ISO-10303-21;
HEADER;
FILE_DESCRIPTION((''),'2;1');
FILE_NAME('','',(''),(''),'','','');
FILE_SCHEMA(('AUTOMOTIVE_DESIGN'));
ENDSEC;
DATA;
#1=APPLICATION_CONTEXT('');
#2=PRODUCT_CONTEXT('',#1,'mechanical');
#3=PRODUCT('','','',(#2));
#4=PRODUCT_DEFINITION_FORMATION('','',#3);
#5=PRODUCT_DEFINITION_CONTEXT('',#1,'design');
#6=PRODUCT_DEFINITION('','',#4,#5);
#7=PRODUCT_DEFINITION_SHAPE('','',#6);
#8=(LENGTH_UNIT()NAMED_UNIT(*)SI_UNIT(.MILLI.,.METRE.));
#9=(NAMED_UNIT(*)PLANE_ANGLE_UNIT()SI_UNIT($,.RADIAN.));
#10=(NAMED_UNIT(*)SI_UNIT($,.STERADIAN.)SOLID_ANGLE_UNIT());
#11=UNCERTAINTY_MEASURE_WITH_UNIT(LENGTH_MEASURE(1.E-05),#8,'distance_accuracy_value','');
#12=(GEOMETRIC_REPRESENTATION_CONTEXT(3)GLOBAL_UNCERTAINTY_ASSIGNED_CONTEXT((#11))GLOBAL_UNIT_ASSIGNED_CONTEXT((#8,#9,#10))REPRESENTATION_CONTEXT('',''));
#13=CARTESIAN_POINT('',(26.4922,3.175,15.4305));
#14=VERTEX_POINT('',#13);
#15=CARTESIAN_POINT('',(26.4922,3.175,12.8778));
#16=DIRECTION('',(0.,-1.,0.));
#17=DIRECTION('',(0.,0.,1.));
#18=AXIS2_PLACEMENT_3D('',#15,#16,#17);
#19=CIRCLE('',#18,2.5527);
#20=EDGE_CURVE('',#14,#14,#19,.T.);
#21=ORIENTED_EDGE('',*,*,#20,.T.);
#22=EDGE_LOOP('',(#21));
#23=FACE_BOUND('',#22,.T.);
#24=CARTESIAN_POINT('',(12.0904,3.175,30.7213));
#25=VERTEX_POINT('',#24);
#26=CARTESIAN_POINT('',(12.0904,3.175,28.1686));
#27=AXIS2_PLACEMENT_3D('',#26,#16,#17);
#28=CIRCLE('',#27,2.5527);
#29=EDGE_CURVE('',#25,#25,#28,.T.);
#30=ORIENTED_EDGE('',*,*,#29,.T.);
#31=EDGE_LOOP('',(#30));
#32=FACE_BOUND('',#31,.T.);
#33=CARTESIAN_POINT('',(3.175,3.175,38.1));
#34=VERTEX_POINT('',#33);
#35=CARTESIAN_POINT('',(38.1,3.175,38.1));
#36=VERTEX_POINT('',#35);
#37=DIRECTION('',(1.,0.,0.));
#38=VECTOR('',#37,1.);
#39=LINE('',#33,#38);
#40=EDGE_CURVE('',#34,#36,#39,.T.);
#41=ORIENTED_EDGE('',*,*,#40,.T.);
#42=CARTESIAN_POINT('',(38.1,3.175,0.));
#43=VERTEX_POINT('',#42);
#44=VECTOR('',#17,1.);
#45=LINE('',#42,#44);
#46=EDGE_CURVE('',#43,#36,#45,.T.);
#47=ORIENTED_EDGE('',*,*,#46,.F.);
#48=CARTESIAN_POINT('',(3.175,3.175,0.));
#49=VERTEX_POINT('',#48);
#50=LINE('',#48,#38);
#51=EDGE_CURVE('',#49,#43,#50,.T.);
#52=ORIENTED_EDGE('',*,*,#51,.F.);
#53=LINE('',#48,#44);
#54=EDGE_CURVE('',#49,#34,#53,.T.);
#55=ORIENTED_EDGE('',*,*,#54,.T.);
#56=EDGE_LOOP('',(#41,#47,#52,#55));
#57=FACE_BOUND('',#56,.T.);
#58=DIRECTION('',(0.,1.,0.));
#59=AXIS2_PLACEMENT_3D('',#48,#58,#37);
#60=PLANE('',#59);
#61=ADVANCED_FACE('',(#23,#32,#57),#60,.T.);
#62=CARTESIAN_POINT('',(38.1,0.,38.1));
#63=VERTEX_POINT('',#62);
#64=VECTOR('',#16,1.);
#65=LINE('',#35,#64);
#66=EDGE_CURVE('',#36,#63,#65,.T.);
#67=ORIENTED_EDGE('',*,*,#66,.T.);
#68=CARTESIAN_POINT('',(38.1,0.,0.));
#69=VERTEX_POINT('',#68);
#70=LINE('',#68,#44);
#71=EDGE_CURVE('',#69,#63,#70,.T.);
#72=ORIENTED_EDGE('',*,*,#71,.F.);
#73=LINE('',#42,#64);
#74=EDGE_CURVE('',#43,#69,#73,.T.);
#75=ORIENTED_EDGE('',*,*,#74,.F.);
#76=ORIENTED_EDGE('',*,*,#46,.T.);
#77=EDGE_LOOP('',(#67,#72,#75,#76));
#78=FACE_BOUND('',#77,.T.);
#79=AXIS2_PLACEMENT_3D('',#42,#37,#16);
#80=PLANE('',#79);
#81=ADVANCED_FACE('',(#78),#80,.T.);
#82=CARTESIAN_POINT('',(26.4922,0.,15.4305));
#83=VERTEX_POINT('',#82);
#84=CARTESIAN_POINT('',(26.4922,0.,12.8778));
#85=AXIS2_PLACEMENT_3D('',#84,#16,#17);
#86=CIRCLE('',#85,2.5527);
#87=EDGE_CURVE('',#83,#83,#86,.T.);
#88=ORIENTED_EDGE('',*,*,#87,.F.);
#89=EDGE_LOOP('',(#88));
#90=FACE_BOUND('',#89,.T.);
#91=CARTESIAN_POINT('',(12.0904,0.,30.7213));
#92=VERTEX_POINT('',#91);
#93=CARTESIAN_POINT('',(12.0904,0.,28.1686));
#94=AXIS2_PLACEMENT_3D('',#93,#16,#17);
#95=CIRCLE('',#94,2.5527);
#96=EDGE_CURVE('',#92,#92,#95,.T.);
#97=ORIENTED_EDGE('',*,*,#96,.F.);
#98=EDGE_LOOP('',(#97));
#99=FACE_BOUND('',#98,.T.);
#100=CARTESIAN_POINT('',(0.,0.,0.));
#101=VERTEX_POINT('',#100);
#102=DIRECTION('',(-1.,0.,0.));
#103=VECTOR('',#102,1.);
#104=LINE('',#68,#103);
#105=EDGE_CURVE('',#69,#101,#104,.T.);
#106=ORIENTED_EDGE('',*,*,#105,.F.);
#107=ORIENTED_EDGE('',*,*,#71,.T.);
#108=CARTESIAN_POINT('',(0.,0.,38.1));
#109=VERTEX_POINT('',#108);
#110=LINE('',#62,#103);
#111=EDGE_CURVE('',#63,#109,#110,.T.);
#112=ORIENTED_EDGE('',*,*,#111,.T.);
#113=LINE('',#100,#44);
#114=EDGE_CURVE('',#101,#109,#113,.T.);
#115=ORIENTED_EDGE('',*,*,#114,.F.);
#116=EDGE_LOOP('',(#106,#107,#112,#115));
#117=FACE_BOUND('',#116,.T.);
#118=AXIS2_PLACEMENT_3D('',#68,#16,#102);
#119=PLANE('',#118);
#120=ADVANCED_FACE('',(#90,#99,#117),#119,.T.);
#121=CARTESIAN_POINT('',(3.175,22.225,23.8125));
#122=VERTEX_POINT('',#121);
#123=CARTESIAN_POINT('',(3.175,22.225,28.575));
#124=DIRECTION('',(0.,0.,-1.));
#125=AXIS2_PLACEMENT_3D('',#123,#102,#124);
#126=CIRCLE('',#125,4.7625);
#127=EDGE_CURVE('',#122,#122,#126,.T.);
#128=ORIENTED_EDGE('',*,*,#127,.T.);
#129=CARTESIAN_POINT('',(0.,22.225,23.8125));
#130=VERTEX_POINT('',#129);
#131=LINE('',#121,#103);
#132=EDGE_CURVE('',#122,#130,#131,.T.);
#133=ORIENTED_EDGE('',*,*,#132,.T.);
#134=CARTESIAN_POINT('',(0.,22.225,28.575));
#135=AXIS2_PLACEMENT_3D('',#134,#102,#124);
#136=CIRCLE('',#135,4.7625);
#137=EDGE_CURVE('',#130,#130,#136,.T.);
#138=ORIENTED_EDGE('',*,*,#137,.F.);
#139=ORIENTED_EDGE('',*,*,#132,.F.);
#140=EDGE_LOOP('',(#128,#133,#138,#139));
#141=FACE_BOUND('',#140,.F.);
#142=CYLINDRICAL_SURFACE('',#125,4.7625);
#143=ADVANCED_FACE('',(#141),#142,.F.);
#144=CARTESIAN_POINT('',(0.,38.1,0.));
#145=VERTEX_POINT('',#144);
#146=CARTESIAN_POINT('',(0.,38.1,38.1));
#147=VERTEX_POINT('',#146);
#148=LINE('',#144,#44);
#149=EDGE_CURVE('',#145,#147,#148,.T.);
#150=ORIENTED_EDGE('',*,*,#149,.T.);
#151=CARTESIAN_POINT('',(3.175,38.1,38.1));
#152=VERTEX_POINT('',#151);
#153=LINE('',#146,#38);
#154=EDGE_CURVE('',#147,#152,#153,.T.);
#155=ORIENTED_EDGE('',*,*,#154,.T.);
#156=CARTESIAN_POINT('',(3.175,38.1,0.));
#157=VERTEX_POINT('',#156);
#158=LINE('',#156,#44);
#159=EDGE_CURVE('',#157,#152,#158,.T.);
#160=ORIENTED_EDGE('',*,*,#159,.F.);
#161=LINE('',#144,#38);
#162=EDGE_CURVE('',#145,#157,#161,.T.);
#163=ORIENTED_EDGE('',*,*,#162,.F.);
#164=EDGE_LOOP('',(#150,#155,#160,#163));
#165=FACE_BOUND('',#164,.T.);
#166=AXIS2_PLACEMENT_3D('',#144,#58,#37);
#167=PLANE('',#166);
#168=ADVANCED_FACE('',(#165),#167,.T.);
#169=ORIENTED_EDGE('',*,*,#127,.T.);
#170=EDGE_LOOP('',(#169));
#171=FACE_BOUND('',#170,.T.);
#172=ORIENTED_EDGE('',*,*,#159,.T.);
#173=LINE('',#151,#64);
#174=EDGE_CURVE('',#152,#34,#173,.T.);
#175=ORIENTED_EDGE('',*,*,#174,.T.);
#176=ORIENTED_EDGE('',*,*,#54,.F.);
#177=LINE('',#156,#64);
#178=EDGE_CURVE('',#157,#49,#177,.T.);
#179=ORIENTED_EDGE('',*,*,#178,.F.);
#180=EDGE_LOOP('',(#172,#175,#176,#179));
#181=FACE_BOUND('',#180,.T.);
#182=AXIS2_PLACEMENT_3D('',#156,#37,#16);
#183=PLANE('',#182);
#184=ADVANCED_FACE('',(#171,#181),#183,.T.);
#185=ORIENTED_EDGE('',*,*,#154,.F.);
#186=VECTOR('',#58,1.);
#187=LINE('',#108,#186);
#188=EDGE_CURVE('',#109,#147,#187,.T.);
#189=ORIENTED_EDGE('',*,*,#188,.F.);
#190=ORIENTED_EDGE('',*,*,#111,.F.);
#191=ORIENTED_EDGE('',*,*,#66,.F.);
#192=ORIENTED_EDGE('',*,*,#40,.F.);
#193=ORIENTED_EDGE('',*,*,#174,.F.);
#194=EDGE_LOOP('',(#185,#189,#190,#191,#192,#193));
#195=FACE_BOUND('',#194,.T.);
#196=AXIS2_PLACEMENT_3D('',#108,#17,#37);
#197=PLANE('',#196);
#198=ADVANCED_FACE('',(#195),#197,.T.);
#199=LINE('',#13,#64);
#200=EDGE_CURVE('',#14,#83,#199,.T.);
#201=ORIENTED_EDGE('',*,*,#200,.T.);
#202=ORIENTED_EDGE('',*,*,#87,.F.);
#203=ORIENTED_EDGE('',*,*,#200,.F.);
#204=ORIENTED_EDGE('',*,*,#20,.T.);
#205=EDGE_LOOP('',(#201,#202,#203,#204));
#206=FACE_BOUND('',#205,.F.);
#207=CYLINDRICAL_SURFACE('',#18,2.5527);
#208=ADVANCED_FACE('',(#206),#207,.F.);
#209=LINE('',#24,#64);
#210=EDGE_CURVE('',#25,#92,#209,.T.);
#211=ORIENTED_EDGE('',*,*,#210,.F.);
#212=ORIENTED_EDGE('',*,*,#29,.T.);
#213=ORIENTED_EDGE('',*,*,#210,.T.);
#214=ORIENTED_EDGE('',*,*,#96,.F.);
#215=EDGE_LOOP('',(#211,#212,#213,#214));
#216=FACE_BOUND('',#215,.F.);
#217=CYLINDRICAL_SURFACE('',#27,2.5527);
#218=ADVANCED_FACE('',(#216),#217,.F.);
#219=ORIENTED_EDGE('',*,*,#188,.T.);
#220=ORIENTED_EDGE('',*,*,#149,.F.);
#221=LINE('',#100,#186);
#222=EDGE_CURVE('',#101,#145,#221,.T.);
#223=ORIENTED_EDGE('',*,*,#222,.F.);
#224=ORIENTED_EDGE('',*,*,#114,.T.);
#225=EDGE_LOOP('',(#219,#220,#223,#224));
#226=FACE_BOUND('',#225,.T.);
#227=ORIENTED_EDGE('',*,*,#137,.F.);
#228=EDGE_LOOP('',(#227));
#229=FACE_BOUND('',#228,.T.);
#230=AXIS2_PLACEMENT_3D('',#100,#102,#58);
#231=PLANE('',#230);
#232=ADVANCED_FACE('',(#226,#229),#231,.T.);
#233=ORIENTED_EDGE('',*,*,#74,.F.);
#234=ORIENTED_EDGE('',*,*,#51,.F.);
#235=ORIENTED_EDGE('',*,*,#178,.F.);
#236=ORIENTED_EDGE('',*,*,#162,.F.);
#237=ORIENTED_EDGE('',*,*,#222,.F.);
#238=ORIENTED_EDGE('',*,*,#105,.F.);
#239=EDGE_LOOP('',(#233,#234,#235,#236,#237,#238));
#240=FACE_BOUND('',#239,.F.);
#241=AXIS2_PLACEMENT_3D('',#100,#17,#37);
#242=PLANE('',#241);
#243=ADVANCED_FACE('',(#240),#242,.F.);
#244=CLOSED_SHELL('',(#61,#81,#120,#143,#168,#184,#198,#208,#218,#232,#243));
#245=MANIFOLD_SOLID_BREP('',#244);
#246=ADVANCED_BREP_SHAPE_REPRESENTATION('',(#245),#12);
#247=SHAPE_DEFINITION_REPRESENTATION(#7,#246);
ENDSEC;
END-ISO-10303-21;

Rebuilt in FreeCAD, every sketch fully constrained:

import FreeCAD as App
import Part
import Sketcher
from FreeCAD import Vector
Q = App.Units.Quantity

doc = App.newDocument("Part")
body = doc.addObject("PartDesign::Body", "Body")

# Sketch on XY plane
sketch1 = body.newObject("Sketcher::SketchObject", "Sketch")
sketch1.AttachmentSupport = (doc.getObject("XY_Plane"), [""])
sketch1.MapMode = "FlatFace"
sketch1.addGeometry([
    Part.LineSegment(Vector(0, 38.1, 0), Vector(0, 0, 0)),  # 0
    Part.LineSegment(Vector(0, 0, 0), Vector(38.1, 0, 0)),  # 1
    Part.LineSegment(Vector(38.1, 0, 0), Vector(38.1, 3.175, 0)),  # 2
    Part.LineSegment(Vector(38.1, 3.175, 0), Vector(3.175, 3.175, 0)),  # 3
    Part.LineSegment(Vector(3.175, 3.175, 0), Vector(3.175, 38.1, 0)),  # 4
    Part.LineSegment(Vector(3.175, 38.1, 0), Vector(0, 38.1, 0)),  # 5
], False)
sketch1.addConstraint([
    Sketcher.Constraint("Coincident", 0, 2, 1, 1),
    Sketcher.Constraint("Coincident", 1, 2, 2, 1),
    Sketcher.Constraint("Coincident", 2, 2, 3, 1),
    Sketcher.Constraint("Coincident", 3, 2, 4, 1),
    Sketcher.Constraint("Coincident", 4, 2, 5, 1),
    Sketcher.Constraint("Coincident", 5, 2, 0, 1),
    Sketcher.Constraint("Vertical", 0),
    Sketcher.Constraint("Horizontal", 1),
    Sketcher.Constraint("Vertical", 2),
    Sketcher.Constraint("Horizontal", 3),
    Sketcher.Constraint("Vertical", 4),
    Sketcher.Constraint("Horizontal", 5),
    Sketcher.Constraint("Coincident", 0, 2, -1, 1),
    Sketcher.Constraint("Equal", 1, 0),
    Sketcher.Constraint("Equal", 5, 2),
    Sketcher.Constraint("DistanceX", 1, 1, 1, 2, Q("1.5 in")),
    Sketcher.Constraint("DistanceX", 5, 2, 5, 1, Q("0.125 in")),
])
pad1 = body.newObject("PartDesign::Pad", "Pad")
pad1.Profile = sketch1
pad1.Length = Q("1.5 in")

# Sketch on YZ plane
sketch2 = body.newObject("Sketcher::SketchObject", "Sketch001")
sketch2.AttachmentSupport = (doc.getObject("YZ_Plane"), [""])
sketch2.MapMode = "FlatFace"
sketch2.AttachmentOffset = App.Placement(Vector(0, 0, 0.125 * 25.4), App.Rotation())
sketch2.addGeometry(Part.Circle(Vector(22.225, 28.575, 0), Vector(0, 0, 1), 4.7625), False)
sketch2.addConstraint([
    Sketcher.Constraint("Diameter", 0, Q("0.375 in")),
    Sketcher.Constraint("DistanceX", -1, 1, 0, 3, Q("0.875 in")),
    Sketcher.Constraint("DistanceY", -1, 1, 0, 3, Q("1.125 in")),
])
doc.recompute()
hole = body.newObject("PartDesign::Hole", "Hole")
hole.Profile = sketch2
hole.ThreadType = "None"
hole.Diameter = Q("0.375 in")
hole.DepthType = "ThroughAll"

# Sketch on XZ plane
sketch3 = body.newObject("Sketcher::SketchObject", "Sketch002")
sketch3.AttachmentSupport = (doc.getObject("XZ_Plane"), [""])
sketch3.MapMode = "FlatFace"
sketch3.AttachmentOffset = App.Placement(Vector(0, 0, -0.125 * 25.4), App.Rotation())
sketch3.addGeometry([
    Part.Circle(Vector(12.0904, 28.1686, 0), Vector(0, 0, 1), 2.5527),
    Part.Circle(Vector(26.4922, 12.8778, 0), Vector(0, 0, 1), 2.5527),
], False)
sketch3.addConstraint([
    Sketcher.Constraint("Equal", 0, 1),
    Sketcher.Constraint("Diameter", 0, Q("0.201 in")),
    Sketcher.Constraint("DistanceX", -1, 1, 0, 3, Q("0.476 in")),
    Sketcher.Constraint("DistanceY", -1, 1, 0, 3, Q("1.109 in")),
    Sketcher.Constraint("DistanceX", -1, 1, 1, 3, Q("1.043 in")),
    Sketcher.Constraint("DistanceY", -1, 1, 1, 3, Q("0.507 in")),
])
doc.recompute()
hole2 = body.newObject("PartDesign::Hole", "Hole001")
hole2.Profile = sketch3
hole2.ThreadType = "None"
hole2.Diameter = Q("0.201 in")
hole2.DepthType = "ThroughAll"
hole2.Reversed = True

doc.recompute()
